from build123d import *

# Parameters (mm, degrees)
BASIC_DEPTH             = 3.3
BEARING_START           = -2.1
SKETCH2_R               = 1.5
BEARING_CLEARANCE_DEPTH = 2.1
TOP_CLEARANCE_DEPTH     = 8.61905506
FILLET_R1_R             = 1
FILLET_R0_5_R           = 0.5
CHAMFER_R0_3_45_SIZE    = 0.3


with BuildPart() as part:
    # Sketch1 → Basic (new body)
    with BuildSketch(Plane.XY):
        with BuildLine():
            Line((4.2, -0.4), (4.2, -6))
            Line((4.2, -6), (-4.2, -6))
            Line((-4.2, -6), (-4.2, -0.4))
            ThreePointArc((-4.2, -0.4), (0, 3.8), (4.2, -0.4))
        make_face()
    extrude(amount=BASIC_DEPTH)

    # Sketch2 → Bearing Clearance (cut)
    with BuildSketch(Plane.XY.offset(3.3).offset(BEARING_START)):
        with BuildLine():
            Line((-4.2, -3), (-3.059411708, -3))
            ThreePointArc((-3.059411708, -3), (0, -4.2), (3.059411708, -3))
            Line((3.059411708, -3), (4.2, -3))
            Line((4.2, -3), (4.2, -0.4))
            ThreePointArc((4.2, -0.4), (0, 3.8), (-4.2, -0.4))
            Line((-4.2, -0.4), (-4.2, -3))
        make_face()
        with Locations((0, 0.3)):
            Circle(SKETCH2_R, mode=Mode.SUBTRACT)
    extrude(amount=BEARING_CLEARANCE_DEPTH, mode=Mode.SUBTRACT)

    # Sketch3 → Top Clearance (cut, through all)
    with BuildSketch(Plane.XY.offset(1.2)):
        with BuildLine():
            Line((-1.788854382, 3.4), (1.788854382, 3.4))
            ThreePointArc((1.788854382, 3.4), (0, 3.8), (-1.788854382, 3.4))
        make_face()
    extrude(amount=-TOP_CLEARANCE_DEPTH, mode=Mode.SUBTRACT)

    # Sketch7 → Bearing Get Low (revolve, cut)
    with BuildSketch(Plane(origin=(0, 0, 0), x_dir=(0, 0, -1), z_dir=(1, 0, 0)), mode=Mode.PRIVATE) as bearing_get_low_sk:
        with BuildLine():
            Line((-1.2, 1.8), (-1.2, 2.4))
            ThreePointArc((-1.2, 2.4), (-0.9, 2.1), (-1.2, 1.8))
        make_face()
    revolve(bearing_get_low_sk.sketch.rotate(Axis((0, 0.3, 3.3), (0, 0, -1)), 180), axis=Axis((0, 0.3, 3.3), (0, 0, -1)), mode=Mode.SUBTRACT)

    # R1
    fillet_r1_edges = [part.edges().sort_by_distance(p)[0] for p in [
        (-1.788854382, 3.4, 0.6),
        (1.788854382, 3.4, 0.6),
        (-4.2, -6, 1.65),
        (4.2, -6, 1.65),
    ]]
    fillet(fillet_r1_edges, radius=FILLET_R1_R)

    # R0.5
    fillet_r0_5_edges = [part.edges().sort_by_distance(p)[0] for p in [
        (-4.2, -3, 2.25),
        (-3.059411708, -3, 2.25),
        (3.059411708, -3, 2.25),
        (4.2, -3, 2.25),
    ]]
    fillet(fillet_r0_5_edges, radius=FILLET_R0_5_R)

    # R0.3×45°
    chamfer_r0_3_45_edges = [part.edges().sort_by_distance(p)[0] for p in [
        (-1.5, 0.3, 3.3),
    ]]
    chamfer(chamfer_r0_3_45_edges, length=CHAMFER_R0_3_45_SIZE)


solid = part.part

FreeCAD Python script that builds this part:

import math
import FreeCAD as App
import Part
import Sketcher
from FreeCAD import Vector
Q = App.Units.Quantity


def edges_at(feature, points):
    """Names of the edges that pass closest to the given points."""
    edges = feature.Shape.Edges
    near = lambda p: min(range(len(edges)), key=lambda i: edges[i].distToShape(Part.Vertex(*p))[0])
    return sorted({f"Edge{near(p) + 1}" for p in points})

doc = App.newDocument("Part")
body = doc.addObject("PartDesign::Body", "Body")

# Sketch on XY plane
sketch1 = body.newObject("Sketcher::SketchObject", "Sketch")
sketch1.AttachmentSupport = (doc.getObject("XY_Plane"), [""])
sketch1.MapMode = "FlatFace"
sketch1.addGeometry(Part.LineSegment(Vector(4.2, -6, 0), Vector(4.2, -0.4, 0)), False)
sketch1.addGeometry(Part.ArcOfCircle(Part.Circle(Vector(0, -0.4, 0), Vector(0, 0, 1), 4.2), math.radians(0), math.radians(180)), False)
sketch1.addGeometry(Part.LineSegment(Vector(-4.2, -0.4, 0), Vector(-4.2, -6, 0)), False)
sketch1.addGeometry(Part.LineSegment(Vector(-4.2, -6, 0), Vector(4.2, -6, 0)), False)
sketch1.addConstraint(Sketcher.Constraint("Tangent", 0, 2, 1, 1))
sketch1.addConstraint(Sketcher.Constraint("Tangent", 1, 2, 2, 1))
sketch1.addConstraint(Sketcher.Constraint("Coincident", 2, 2, 3, 1))
sketch1.addConstraint(Sketcher.Constraint("Coincident", 3, 2, 0, 1))
sketch1.addConstraint(Sketcher.Constraint("Vertical", 0))
sketch1.addConstraint(Sketcher.Constraint("Vertical", 2))
sketch1.addConstraint(Sketcher.Constraint("Horizontal", 3))
sketch1.addConstraint(Sketcher.Constraint("PointOnObject", 1, 3, -2))
sketch1.addConstraint(Sketcher.Constraint("Radius", 1, Q("4.2 mm")))
sketch1.addConstraint(Sketcher.Constraint("DistanceY", 0, 1, 0, 2, Q("5.6 mm")))
sketch1.addConstraint(Sketcher.Constraint("DistanceY", 2, 2, -1, 1, Q("6 mm")))
pad1 = body.newObject("PartDesign::Pad", "Pad")
pad1.Profile = sketch1
pad1.Length = 3.3

# Sketch on XY plane
sketch2 = body.newObject("Sketcher::SketchObject", "Sketch001")
sketch2.AttachmentSupport = (doc.getObject("XY_Plane"), [""])
sketch2.MapMode = "FlatFace"
sketch2.AttachmentOffset = App.Placement(Vector(0, 0, 1.2), App.Rotation())
sketch2.addGeometry(Part.LineSegment(Vector(-4.2, -3, 0), Vector(-3.059412, -3, 0)), False)
sketch2.addGeometry(Part.ArcOfCircle(Part.Circle(Vector(0, 0.3, 0), Vector(0, 0, 1), 4.5), math.radians(-132.833428), math.radians(-47.166572)), False)
sketch2.addGeometry(Part.LineSegment(Vector(3.059412, -3, 0), Vector(4.2, -3, 0)), False)
sketch2.addGeometry(Part.LineSegment(Vector(4.2, -3, 0), Vector(4.2, -0.4, 0)), False)
sketch2.addGeometry(Part.ArcOfCircle(Part.Circle(Vector(0, -0.4, 0), Vector(0, 0, 1), 4.2), math.radians(0), math.radians(180)), False)
sketch2.addGeometry(Part.LineSegment(Vector(-4.2, -0.4, 0), Vector(-4.2, -3, 0)), False)
sketch2.addGeometry(Part.Circle(Vector(0, 0.3, 0), Vector(0, 0, 1), 1.5), False)
sketch2.addConstraint(Sketcher.Constraint("Coincident", 0, 2, 1, 1))
sketch2.addConstraint(Sketcher.Constraint("Coincident", 1, 2, 2, 1))
sketch2.addConstraint(Sketcher.Constraint("Coincident", 2, 2, 3, 1))
sketch2.addConstraint(Sketcher.Constraint("Tangent", 3, 2, 4, 1))
sketch2.addConstraint(Sketcher.Constraint("Tangent", 4, 2, 5, 1))
sketch2.addConstraint(Sketcher.Constraint("Coincident", 5, 2, 0, 1))
sketch2.addConstraint(Sketcher.Constraint("Horizontal", 0))
sketch2.addConstraint(Sketcher.Constraint("Horizontal", 2))
sketch2.addConstraint(Sketcher.Constraint("Vertical", 3))
sketch2.addConstraint(Sketcher.Constraint("Vertical", 5))
sketch2.addConstraint(Sketcher.Constraint("Coincident", 6, 3, 1, 3))
sketch2.addConstraint(Sketcher.Constraint("Symmetric", 0, 2, 1, 2, -2))
sketch2.addConstraint(Sketcher.Constraint("PointOnObject", 4, 3, -2))
sketch2.addConstraint(Sketcher.Constraint("Diameter", 6, Q("3 mm")))
sketch2.addConstraint(Sketcher.Constraint("Radius", 1, Q("4.5 mm")))
sketch2.addConstraint(Sketcher.Constraint("Radius", 4, Q("4.2 mm")))
sketch2.addConstraint(Sketcher.Constraint("DistanceY", 3, 1, 3, 2, Q("2.6 mm")))
sketch2.addConstraint(Sketcher.Constraint("DistanceY", 0, 2, -1, 1, Q("3 mm")))
sketch2.addConstraint(Sketcher.Constraint("DistanceY", -1, 1, 1, 3, Q("0.3 mm")))
pocket1 = body.newObject("PartDesign::Pocket", "Pocket")
pocket1.Profile = sketch2
pocket1.Length = 2.1
pocket1.Reversed = True

# Sketch on XY plane
sketch3 = body.newObject("Sketcher::SketchObject", "Sketch002")
sketch3.AttachmentSupport = (doc.getObject("XY_Plane"), [""])
sketch3.MapMode = "FlatFace"
sketch3.AttachmentOffset = App.Placement(Vector(0, 0, 1.2), App.Rotation())
sketch3.addGeometry(Part.LineSegment(Vector(-1.788854, 3.4, 0), Vector(1.788854, 3.4, 0)), False)
sketch3.addGeometry(Part.ArcOfCircle(Part.Circle(Vector(0, -0.4, 0), Vector(0, 0, 1), 4.2), math.radians(64.791235), math.radians(115.208765)), False)
sketch3.addConstraint(Sketcher.Constraint("Coincident", 0, 1, 1, 2))
sketch3.addConstraint(Sketcher.Constraint("Coincident", 1, 1, 0, 2))
sketch3.addConstraint(Sketcher.Constraint("Horizontal", 0))
sketch3.addConstraint(Sketcher.Constraint("PointOnObject", 1, 3, -2))
sketch3.addConstraint(Sketcher.Constraint("Radius", 1, Q("4.2 mm")))
sketch3.addConstraint(Sketcher.Constraint("DistanceY", 1, 3, -1, 1, Q("0.4 mm")))
sketch3.addConstraint(Sketcher.Constraint("DistanceY", -1, 1, 0, 1, Q("3.4 mm")))
pocket2 = body.newObject("PartDesign::Pocket", "Pocket001")
pocket2.Profile = sketch3
pocket2.Type = "ThroughAll"

# Sketch on YZ plane
sketch4 = body.newObject("Sketcher::SketchObject", "Sketch003")
sketch4.AttachmentSupport = (doc.getObject("YZ_Plane"), [""])
sketch4.MapMode = "FlatFace"
sketch4.addGeometry(Part.LineSegment(Vector(2.4, 1.2, 0), Vector(1.8, 1.2, 0)), False)
sketch4.addGeometry(Part.ArcOfCircle(Part.Circle(Vector(2.1, 1.2, 0), Vector(0, 0, 1), 0.3), math.radians(180), math.radians(360)), False)
sketch4.addGeometry(Part.LineSegment(Vector(0.3, 1.2, 0), Vector(0.3, -8.8, 0)), True)  # axis
sketch4.addConstraint(Sketcher.Constraint("Coincident", 0, 1, 1, 2))
sketch4.addConstraint(Sketcher.Constraint("Coincident", 1, 1, 0, 2))
sketch4.addConstraint(Sketcher.Constraint("Horizontal", 0))
sketch4.addConstraint(Sketcher.Constraint("Vertical", 2))
sketch4.addConstraint(Sketcher.Constraint("Horizontal", 1, 3, 0, 1))
sketch4.addConstraint(Sketcher.Constraint("Horizontal", 1, 1, 2, 1))
sketch4.addConstraint(Sketcher.Constraint("Radius", 1, Q("0.3 mm")))
sketch4.addConstraint(Sketcher.Constraint("DistanceY", 2, 2, 2, 1, Q("10 mm")))
sketch4.addConstraint(Sketcher.Constraint("DistanceX", -1, 1, 1, 3, Q("2.1 mm")))
sketch4.addConstraint(Sketcher.Constraint("DistanceY", -1, 1, 1, 3, Q("1.2 mm")))
sketch4.addConstraint(Sketcher.Constraint("DistanceX", -1, 1, 2, 1, Q("0.3 mm")))
groove = body.newObject("PartDesign::Groove", "Groove")
groove.Profile = sketch4
groove.ReferenceAxis = (sketch4, ["Axis0"])
groove.Angle = 360
doc.recompute()

fillet = body.newObject("PartDesign::Fillet", "Fillet")
fillet.Base = (groove, edges_at(groove, [
    (-1.789, 3.4, 0.6),
    (1.789, 3.4, 0.6),
    (-4.2, -6, 1.65),
    (4.2, -6, 1.65),
]))
fillet.Radius = 1
doc.recompute()

fillet2 = body.newObject("PartDesign::Fillet", "Fillet001")
fillet2.Base = (fillet, edges_at(fillet, [
    (-4.2, -3, 2.25),
    (-3.059, -3, 2.25),
    (3.059, -3, 2.25),
    (4.2, -3, 2.25),
]))
fillet2.Radius = 0.5
doc.recompute()

chamfer = body.newObject("PartDesign::Chamfer", "Chamfer")
chamfer.Base = (fillet2, edges_at(fillet2, [(-1.5, 0.3, 3.3)]))
chamfer.Size = 0.3

doc.recompute()
